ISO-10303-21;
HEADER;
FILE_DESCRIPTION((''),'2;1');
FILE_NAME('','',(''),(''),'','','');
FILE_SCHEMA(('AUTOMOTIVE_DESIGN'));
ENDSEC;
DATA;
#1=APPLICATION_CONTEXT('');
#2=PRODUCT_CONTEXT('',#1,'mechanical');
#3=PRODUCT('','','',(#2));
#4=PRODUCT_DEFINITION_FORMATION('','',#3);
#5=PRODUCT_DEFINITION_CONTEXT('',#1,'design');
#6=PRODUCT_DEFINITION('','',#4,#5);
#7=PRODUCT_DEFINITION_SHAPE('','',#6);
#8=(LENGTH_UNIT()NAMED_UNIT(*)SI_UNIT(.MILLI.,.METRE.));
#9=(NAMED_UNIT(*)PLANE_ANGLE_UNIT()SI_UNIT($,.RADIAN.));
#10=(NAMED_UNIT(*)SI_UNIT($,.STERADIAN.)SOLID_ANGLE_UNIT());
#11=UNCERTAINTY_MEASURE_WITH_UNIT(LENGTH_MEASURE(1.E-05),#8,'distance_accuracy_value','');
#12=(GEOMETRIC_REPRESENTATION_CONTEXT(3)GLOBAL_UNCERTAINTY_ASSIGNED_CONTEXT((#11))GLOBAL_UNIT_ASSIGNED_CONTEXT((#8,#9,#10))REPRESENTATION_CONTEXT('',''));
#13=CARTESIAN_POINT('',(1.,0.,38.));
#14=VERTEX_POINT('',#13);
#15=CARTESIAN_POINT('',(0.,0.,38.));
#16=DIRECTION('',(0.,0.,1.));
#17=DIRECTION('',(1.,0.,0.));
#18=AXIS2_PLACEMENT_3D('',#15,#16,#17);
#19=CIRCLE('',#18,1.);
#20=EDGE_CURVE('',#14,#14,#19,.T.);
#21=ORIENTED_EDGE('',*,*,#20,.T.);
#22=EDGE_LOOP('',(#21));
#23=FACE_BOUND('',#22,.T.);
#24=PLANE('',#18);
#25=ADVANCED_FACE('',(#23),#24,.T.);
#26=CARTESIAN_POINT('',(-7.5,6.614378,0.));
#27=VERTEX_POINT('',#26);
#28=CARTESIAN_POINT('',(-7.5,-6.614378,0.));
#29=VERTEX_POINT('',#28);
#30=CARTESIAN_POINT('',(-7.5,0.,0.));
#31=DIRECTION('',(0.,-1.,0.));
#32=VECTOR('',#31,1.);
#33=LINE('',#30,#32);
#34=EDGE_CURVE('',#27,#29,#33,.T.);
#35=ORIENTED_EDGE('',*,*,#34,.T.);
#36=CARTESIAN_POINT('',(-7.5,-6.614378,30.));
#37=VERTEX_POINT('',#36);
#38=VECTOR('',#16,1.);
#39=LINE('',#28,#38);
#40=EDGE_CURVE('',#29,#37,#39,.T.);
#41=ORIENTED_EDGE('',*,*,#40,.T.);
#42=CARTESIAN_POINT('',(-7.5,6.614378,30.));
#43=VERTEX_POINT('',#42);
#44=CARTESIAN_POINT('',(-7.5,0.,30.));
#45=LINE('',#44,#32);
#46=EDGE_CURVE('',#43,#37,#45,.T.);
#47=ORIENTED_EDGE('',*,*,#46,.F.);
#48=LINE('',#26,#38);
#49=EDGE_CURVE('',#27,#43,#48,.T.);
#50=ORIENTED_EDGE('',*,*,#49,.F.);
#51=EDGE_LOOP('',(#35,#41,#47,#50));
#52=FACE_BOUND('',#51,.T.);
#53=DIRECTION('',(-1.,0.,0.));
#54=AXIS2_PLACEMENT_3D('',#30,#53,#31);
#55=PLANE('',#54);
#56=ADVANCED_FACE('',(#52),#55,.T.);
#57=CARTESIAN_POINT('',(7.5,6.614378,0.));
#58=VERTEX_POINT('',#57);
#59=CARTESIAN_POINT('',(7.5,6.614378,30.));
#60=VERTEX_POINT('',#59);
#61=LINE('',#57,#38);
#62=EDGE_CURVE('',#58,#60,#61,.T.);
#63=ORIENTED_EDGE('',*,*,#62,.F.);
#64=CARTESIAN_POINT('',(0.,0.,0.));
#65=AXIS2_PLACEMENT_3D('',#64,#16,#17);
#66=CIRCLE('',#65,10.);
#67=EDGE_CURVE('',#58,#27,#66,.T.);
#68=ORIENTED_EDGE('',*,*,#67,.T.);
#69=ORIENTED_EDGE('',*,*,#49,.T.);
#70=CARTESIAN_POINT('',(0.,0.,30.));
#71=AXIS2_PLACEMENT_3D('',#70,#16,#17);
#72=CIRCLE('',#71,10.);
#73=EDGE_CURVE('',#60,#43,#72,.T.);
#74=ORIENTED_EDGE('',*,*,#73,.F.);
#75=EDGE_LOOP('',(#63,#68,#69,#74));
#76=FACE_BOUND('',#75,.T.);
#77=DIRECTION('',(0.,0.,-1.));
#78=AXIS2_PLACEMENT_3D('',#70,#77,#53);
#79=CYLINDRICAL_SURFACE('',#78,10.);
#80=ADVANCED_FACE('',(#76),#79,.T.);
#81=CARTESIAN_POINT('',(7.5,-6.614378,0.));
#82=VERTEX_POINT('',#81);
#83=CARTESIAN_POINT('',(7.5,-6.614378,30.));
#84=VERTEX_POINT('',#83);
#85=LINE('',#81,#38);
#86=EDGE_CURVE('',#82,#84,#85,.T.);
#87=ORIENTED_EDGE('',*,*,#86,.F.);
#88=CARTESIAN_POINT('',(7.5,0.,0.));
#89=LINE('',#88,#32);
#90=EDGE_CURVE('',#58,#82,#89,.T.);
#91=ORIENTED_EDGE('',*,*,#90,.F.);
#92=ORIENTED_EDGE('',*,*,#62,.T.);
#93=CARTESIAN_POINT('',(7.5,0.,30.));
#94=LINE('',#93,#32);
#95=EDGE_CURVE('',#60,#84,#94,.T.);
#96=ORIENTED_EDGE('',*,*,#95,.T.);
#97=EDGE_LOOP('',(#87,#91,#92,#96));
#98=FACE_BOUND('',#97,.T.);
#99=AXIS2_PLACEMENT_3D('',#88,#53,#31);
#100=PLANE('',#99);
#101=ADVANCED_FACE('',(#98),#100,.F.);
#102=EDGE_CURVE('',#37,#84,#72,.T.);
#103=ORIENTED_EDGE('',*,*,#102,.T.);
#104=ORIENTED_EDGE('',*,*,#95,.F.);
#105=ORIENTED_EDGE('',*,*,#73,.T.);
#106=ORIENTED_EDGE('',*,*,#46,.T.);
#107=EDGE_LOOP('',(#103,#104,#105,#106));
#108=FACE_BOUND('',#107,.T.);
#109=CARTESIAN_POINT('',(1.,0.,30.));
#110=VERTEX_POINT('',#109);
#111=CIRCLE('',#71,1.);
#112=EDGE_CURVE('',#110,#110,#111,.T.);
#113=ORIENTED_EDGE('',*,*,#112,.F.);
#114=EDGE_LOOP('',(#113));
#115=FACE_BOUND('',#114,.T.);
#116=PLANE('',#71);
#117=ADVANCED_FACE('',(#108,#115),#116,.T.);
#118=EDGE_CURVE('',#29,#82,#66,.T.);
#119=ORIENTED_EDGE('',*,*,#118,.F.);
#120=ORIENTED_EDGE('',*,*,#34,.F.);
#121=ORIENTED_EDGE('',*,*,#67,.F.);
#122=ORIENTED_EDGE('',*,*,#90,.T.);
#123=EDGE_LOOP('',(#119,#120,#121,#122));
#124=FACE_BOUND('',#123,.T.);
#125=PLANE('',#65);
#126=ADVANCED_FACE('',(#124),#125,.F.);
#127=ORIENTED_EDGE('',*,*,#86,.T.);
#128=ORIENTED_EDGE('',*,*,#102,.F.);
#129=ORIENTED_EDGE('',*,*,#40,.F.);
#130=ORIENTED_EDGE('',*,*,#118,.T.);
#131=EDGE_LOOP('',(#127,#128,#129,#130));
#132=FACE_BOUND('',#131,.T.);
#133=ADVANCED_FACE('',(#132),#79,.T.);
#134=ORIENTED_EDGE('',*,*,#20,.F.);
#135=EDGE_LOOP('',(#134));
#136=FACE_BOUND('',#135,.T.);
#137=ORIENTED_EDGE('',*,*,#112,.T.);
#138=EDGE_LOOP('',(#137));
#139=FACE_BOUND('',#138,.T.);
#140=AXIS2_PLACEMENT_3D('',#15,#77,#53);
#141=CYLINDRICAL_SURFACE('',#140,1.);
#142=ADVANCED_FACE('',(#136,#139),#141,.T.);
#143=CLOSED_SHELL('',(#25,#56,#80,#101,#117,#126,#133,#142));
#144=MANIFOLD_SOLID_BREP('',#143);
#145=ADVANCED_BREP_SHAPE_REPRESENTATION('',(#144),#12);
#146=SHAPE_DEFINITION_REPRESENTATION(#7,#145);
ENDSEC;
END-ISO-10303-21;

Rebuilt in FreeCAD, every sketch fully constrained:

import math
import FreeCAD as App
import Part
import Sketcher
from FreeCAD import Vector
Q = App.Units.Quantity

doc = App.newDocument("Part")
params = doc.addObject("Spreadsheet::Sheet", "Params")
for row, (alias, value) in enumerate([
    ("sketch1_diameter", "20 mm"),
    ("pad1_length", "30 mm"),
    ("sketch2_radius", "10 mm"),
    ("pocket1_length", "30 mm"),
    ("sketch3_diameter", "2 mm"),
    ("pad2_length", "8 mm"),
], start=1):
    params.set(f"A{row}", alias)
    params.set(f"B{row}", "=" + value)
    params.setAlias(f"B{row}", alias)

body = doc.addObject("PartDesign::Body", "Body")

sketch1 = body.newObject("Sketcher::SketchObject", "Sketch")
sketch1.AttachmentSupport = (doc.getObject("XY_Plane"), [""])
sketch1.MapMode = "FlatFace"
sketch1.addGeometry(Part.Circle(Vector(0, 0, 0), Vector(0, 0, 1), 10), False)
sketch1.addConstraint([
    Sketcher.Constraint("Coincident", 0, 3, -1, 1),
    Sketcher.Constraint("Diameter", 0, Q("20 mm")),
])
sketch1.setExpression("Constraints[1]", "Params.sketch1_diameter")
pad1 = body.newObject("PartDesign::Pad", "Pad")
pad1.Profile = sketch1
pad1.setExpression("Length", "Params.pad1_length")

sketch2 = body.newObject("Sketcher::SketchObject", "Sketch001")
sketch2.AttachmentSupport = (doc.getObject("XY_Plane"), [""])
sketch2.MapMode = "FlatFace"
sketch2.AttachmentOffset = App.Placement(Vector(0, 0, 30), App.Rotation())
sketch2.addGeometry([
    Part.ArcOfCircle(Part.Circle(Vector(0, 0, 0), Vector(0, 0, 1), 10), math.radians(0), math.radians(41)),
    Part.LineSegment(Vector(8, 7, 0), Vector(8, -7, 0)),
    Part.ArcOfCircle(Part.Circle(Vector(0, 0, 0), Vector(0, 0, 1), 10), math.radians(-41), math.radians(0)),
    Part.LineSegment(Vector(-8, -7, 0), Vector(-8, 7, 0)),
    Part.ArcOfCircle(Part.Circle(Vector(0, 0, 0), Vector(0, 0, 1), 10), math.radians(139), math.radians(221)),
], False)
sketch2.addConstraint([
    Sketcher.Constraint("Coincident", 0, 2, 1, 1),
    Sketcher.Constraint("Coincident", 1, 2, 2, 1),
    Sketcher.Constraint("Tangent", 2, 2, 0, 1),
    Sketcher.Constraint("Coincident", 3, 1, 4, 2),
    Sketcher.Constraint("Coincident", 4, 1, 3, 2),
    Sketcher.Constraint("Vertical", 1),
    Sketcher.Constraint("Vertical", 3),
    Sketcher.Constraint("Coincident", 0, 3, -1, 1),
    Sketcher.Constraint("Coincident", 4, 3, -1, 1),
    Sketcher.Constraint("Equal", 0, 2),
    Sketcher.Constraint("Equal", 2, 4),
    Sketcher.Constraint("PointOnObject", 2, 2, -1),
    Sketcher.Constraint("Horizontal", 1, 2, 3, 1),
    Sketcher.Constraint("Radius", 0, Q("10 mm")),
    Sketcher.Constraint("DistanceX", 3, 1, 1, 2, Q("15 mm")),
])
sketch2.setExpression("Constraints[13]", "Params.sketch2_radius")
pocket1 = body.newObject("PartDesign::Pocket", "Pocket")
pocket1.Profile = sketch2
pocket1.setExpression("Length", "Params.pocket1_length")

sketch3 = body.newObject("Sketcher::SketchObject", "Sketch002")
sketch3.AttachmentSupport = (doc.getObject("XY_Plane"), [""])
sketch3.MapMode = "FlatFace"
sketch3.AttachmentOffset = App.Placement(Vector(0, 0, 30), App.Rotation())
sketch3.addGeometry(Part.Circle(Vector(0, 0, 0), Vector(0, 0, 1), 1), False)
sketch3.addConstraint([
    Sketcher.Constraint("Coincident", 0, 3, -1, 1),
    Sketcher.Constraint("Diameter", 0, Q("2 mm")),
])
sketch3.setExpression("Constraints[1]", "Params.sketch3_diameter")
pad2 = body.newObject("PartDesign::Pad", "Pad001")
pad2.Profile = sketch3
pad2.setExpression("Length", "Params.pad2_length")

doc.recompute()
